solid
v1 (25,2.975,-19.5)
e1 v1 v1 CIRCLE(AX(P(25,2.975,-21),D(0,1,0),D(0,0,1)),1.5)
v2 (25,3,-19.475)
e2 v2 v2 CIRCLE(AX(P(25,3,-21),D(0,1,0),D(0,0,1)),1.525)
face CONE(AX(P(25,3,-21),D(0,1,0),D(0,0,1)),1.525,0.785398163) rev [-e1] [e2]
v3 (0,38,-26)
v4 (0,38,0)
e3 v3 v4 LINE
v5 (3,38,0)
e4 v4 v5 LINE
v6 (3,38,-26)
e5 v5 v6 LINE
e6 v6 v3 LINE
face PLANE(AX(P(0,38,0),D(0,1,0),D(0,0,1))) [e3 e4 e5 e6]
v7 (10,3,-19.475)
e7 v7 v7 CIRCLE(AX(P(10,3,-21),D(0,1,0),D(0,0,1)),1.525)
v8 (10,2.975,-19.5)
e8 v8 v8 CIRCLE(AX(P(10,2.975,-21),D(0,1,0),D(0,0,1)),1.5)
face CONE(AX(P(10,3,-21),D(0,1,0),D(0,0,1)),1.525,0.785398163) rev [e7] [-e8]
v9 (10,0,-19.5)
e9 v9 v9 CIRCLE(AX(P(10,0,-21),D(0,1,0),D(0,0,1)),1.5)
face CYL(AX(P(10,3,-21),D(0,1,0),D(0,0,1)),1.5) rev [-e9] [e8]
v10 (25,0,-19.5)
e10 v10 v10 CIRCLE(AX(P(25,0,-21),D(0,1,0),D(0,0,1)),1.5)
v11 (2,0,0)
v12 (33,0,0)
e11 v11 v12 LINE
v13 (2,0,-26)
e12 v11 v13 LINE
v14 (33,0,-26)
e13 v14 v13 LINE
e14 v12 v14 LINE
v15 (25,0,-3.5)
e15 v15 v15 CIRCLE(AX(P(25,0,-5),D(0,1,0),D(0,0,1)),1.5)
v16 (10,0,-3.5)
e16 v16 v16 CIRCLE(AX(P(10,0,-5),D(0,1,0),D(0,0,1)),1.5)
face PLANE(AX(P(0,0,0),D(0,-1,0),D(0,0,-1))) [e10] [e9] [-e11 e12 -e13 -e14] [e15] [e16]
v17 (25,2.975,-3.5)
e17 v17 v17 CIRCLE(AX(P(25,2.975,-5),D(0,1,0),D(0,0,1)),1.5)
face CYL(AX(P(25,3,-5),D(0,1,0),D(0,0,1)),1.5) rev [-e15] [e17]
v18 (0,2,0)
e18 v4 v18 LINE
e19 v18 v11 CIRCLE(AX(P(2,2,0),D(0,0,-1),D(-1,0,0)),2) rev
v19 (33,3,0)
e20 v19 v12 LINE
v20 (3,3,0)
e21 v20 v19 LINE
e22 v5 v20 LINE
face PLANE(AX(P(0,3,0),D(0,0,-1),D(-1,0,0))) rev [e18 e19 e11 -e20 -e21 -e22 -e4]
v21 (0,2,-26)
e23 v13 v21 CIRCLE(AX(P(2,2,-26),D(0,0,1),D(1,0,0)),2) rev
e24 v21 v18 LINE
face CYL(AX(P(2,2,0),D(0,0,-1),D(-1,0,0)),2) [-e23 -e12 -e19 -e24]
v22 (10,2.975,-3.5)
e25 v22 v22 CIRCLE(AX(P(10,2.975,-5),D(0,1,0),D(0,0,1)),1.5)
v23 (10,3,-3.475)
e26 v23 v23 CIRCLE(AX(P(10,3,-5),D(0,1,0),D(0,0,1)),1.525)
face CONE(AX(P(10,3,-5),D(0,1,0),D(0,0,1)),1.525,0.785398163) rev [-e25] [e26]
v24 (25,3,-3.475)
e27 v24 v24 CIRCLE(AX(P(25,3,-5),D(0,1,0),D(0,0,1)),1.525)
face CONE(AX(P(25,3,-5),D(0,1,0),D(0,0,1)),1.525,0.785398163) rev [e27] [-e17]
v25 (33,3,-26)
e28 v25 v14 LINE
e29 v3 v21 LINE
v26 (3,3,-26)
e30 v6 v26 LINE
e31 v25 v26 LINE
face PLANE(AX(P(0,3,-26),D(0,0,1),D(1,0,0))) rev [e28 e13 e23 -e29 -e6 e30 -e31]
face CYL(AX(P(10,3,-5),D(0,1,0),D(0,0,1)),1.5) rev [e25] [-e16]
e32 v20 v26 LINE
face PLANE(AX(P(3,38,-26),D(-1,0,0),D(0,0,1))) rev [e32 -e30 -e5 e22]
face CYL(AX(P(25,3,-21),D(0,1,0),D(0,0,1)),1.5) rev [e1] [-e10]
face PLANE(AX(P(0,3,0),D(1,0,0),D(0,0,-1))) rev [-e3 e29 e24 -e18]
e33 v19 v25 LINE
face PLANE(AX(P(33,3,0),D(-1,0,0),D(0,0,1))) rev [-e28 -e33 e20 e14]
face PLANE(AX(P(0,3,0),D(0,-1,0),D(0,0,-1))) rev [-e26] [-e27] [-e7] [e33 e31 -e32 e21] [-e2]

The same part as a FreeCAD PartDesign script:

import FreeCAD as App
import Part
import Sketcher
from FreeCAD import Vector


def edges_at(feature, points):
    """Names of the edges that pass closest to the given points."""
    edges = feature.Shape.Edges
    near = lambda p: min(range(len(edges)), key=lambda i: edges[i].distToShape(Part.Vertex(*p))[0])
    return sorted({f"Edge{near(p) + 1}" for p in points})

doc = App.newDocument("Part")
body = doc.addObject("PartDesign::Body", "Body")

# Sketch on XZ plane
sketch1 = doc.addObject("Sketcher::SketchObject", "Sketch")
body.addObject(sketch1)
sketch1.AttachmentSupport = (doc.XZ_Plane, [""])
sketch1.MapMode = "FlatFace"
sketch1.addGeometry([
    Part.LineSegment(Vector(0, -26, 0), Vector(0, 0, 0)),
    Part.LineSegment(Vector(0, 0, 0), Vector(33, 0, 0)),
    Part.LineSegment(Vector(33, 0, 0), Vector(33, -26, 0)),
    Part.LineSegment(Vector(33, -26, 0), Vector(0, -26, 0)),
], False)
sketch1.addConstraint([
    Sketcher.Constraint("Coincident", 0, 2, 1, 1),
    Sketcher.Constraint("Coincident", 1, 2, 2, 1),
    Sketcher.Constraint("Coincident", 2, 2, 3, 1),
    Sketcher.Constraint("Coincident", 3, 2, 0, 1),
    Sketcher.Constraint("Vertical", 0),
    Sketcher.Constraint("Horizontal", 1),
    Sketcher.Constraint("Vertical", 2),
    Sketcher.Constraint("Horizontal", 3),
    Sketcher.Constraint("Coincident", 0, 2, -1, 1),
    Sketcher.Constraint("DistanceX", 1, 1, 1, 2, 33.0),
    Sketcher.Constraint("DistanceY", 0, 1, 0, 2, 26.0),
])
pad1 = doc.addObject("PartDesign::Pad", "Pad")
body.addObject(pad1)
pad1.Profile = sketch1
pad1.Length = 3
pad1.Reversed = True

# Sketch on XZ plane
sketch2 = doc.addObject("Sketcher::SketchObject", "Sketch001")
body.addObject(sketch2)
sketch2.AttachmentSupport = (doc.XZ_Plane, [""])
sketch2.MapMode = "FlatFace"
sketch2.AttachmentOffset = App.Placement(Vector(0, 0, -3), App.Rotation())
sketch2.addGeometry([
    Part.LineSegment(Vector(0, -26, 0), Vector(0, 0, 0)),
    Part.LineSegment(Vector(0, 0, 0), Vector(3, 0, 0)),
    Part.LineSegment(Vector(3, 0, 0), Vector(3, -26, 0)),
    Part.LineSegment(Vector(3, -26, 0), Vector(0, -26, 0)),
], False)
sketch2.addConstraint([
    Sketcher.Constraint("Coincident", 0, 2, 1, 1),
    Sketcher.Constraint("Coincident", 1, 2, 2, 1),
    Sketcher.Constraint("Coincident", 2, 2, 3, 1),
    Sketcher.Constraint("Coincident", 3, 2, 0, 1),
    Sketcher.Constraint("Vertical", 0),
    Sketcher.Constraint("Horizontal", 1),
    Sketcher.Constraint("Vertical", 2),
    Sketcher.Constraint("Horizontal", 3),
    Sketcher.Constraint("Coincident", 0, 2, -1, 1),
    Sketcher.Constraint("DistanceX", 1, 1, 1, 2, 3.0),
    Sketcher.Constraint("DistanceY", 0, 1, 0, 2, 26.0),
])
pad2 = doc.addObject("PartDesign::Pad", "Pad001")
body.addObject(pad2)
pad2.Profile = sketch2
pad2.Length = 35
pad2.Reversed = True
doc.recompute()

fillet = doc.addObject("PartDesign::Fillet", "Fillet")
body.addObject(fillet)
fillet.Base = (pad2, edges_at(pad2, [(0, 0, -13)]))
fillet.Radius = 2

# Sketch on XZ plane
sketch3 = doc.addObject("Sketcher::SketchObject", "Sketch002")
body.addObject(sketch3)
sketch3.AttachmentSupport = (doc.XZ_Plane, [""])
sketch3.MapMode = "FlatFace"
sketch3.AttachmentOffset = App.Placement(Vector(0, 0, -3), App.Rotation())
sketch3.addGeometry([
    Part.Circle(Vector(25, -21, 0), Vector(0, 0, 1), 1.5),
    Part.Circle(Vector(10, -21, 0), Vector(0, 0, 1), 1.5),
    Part.Circle(Vector(25, -5, 0), Vector(0, 0, 1), 1.5),
    Part.Circle(Vector(10, -5, 0), Vector(0, 0, 1), 1.5),
], False)
sketch3.addConstraint([
    Sketcher.Constraint("Equal", 0, 1),
    Sketcher.Constraint("Equal", 1, 2),
    Sketcher.Constraint("Equal", 2, 3),
    Sketcher.Constraint("Horizontal", 0, 3, 1, 3),
    Sketcher.Constraint("Horizontal", 2, 3, 3, 3),
    Sketcher.Constraint("Vertical", 0, 3, 2, 3),
    Sketcher.Constraint("Vertical", 1, 3, 3, 3),
    Sketcher.Constraint("Diameter", 0, 3.0),
    Sketcher.Constraint("DistanceX", -1, 1, 0, 3, 25.0),
    Sketcher.Constraint("DistanceY", 0, 3, -1, 1, 21.0),
    Sketcher.Constraint("DistanceX", -1, 1, 1, 3, 10.0),
    Sketcher.Constraint("DistanceY", 2, 3, -1, 1, 5.0),
])
doc.recompute()
hole = doc.addObject("PartDesign::Hole", "Hole")
body.addObject(hole)
hole.Profile = sketch3
hole.ThreadType = "None"
hole.Diameter = 3
hole.DepthType = "ThroughAll"
hole.HoleCutType = "Countersink"
hole.HoleCutDiameter = 3.05
hole.HoleCutCountersinkAngle = 90
hole.Reversed = True

doc.recompute()
